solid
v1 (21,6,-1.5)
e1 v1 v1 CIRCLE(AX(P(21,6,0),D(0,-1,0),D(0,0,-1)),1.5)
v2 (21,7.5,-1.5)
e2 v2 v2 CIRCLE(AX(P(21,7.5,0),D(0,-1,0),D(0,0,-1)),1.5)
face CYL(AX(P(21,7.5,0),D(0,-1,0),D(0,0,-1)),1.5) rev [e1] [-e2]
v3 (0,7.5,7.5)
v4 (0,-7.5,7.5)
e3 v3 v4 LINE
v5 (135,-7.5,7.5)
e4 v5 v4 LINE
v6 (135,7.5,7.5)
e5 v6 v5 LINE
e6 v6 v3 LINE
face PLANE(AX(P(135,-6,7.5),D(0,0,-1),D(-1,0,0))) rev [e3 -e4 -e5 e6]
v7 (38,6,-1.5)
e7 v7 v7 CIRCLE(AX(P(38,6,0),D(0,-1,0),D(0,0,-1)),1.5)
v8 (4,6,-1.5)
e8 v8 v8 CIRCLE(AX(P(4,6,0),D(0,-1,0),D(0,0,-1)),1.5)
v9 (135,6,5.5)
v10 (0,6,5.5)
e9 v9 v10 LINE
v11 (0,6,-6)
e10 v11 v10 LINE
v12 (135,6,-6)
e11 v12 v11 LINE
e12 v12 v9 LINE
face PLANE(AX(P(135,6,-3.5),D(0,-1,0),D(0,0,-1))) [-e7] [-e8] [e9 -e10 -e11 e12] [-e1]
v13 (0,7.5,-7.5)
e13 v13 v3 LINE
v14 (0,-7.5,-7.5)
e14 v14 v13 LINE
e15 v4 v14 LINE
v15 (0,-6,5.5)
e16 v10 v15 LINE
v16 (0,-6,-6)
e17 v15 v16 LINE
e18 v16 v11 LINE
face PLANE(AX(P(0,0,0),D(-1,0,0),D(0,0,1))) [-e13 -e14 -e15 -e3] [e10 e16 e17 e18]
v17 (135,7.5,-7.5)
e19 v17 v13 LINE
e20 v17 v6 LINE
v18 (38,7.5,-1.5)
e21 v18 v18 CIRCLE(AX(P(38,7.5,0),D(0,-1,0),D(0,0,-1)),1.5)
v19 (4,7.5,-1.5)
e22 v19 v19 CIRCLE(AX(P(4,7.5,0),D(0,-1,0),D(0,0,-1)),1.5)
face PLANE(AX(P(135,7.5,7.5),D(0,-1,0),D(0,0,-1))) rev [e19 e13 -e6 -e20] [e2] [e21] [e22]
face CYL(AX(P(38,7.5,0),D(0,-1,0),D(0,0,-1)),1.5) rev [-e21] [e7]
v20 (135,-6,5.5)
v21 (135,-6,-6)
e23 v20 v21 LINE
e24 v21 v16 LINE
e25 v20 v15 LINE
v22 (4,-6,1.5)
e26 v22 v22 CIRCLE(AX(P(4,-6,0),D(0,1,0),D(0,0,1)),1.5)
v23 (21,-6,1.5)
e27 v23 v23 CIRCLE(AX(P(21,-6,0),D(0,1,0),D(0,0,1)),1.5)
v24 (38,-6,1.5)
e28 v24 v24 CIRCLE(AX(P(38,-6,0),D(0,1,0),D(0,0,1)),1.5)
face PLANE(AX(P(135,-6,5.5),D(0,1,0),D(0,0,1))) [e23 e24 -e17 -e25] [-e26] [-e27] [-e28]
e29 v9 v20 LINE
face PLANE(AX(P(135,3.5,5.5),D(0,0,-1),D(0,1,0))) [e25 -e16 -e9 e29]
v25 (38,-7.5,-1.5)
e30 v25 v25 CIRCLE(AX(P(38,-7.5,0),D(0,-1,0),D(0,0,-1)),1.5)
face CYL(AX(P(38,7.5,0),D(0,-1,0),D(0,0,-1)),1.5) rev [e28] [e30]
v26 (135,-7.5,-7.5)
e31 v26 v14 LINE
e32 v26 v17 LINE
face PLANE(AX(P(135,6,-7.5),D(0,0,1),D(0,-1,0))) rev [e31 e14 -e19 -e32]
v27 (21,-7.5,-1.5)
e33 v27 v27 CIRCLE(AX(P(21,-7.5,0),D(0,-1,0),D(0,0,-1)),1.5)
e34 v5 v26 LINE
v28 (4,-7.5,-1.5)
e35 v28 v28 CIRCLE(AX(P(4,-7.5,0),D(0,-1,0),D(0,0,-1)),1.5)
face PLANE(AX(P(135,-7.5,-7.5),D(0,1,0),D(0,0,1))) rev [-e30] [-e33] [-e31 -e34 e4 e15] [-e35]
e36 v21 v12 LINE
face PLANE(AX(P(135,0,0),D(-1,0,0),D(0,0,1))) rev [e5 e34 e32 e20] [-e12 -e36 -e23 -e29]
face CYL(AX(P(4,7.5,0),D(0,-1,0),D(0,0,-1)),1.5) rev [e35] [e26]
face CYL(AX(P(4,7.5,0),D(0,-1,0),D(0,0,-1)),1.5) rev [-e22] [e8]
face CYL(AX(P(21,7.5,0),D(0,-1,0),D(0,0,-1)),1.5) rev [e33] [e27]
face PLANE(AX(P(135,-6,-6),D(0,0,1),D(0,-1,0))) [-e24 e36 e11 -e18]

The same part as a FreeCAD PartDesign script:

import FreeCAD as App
import Part
import Sketcher

V = App.Vector

doc = App.newDocument("Part")
body = doc.addObject("PartDesign::Body", "Body")

sketch1 = body.newObject("Sketcher::SketchObject", "Sketch")
sketch1.AttachmentSupport = (doc.getObject("YZ_Plane"), [""])
sketch1.MapMode = "FlatFace"
sketch1.addGeometry([
    Part.LineSegment(V(-8, -8, 0), V(8, -8, 0)),
    Part.LineSegment(V(8, -8, 0), V(8, 8, 0)),
    Part.LineSegment(V(8, 8, 0), V(-8, 8, 0)),
    Part.LineSegment(V(-8, 8, 0), V(-8, -8, 0)),
    Part.LineSegment(V(-6, -6, 0), V(-6, 6, 0)),
    Part.LineSegment(V(-6, 6, 0), V(6, 6, 0)),
    Part.LineSegment(V(6, 6, 0), V(6, -6, 0)),
    Part.LineSegment(V(6, -6, 0), V(-6, -6, 0)),
], False)
sketch1.addConstraint([
    Sketcher.Constraint("Coincident", 0, 2, 1, 1),
    Sketcher.Constraint("Coincident", 1, 2, 2, 1),
    Sketcher.Constraint("Coincident", 2, 2, 3, 1),
    Sketcher.Constraint("Coincident", 3, 2, 0, 1),
    Sketcher.Constraint("Coincident", 4, 2, 5, 1),
    Sketcher.Constraint("Coincident", 5, 2, 6, 1),
    Sketcher.Constraint("Coincident", 6, 2, 7, 1),
    Sketcher.Constraint("Coincident", 7, 2, 4, 1),
    Sketcher.Constraint("Horizontal", 0),
    Sketcher.Constraint("Vertical", 1),
    Sketcher.Constraint("Horizontal", 2),
    Sketcher.Constraint("Vertical", 3),
    Sketcher.Constraint("Vertical", 4),
    Sketcher.Constraint("Horizontal", 5),
    Sketcher.Constraint("Vertical", 6),
    Sketcher.Constraint("Horizontal", 7),
    Sketcher.Constraint("Symmetric", 0, 2, 2, 2, -1, 1),
    Sketcher.Constraint("Equal", 2, 1),
    Sketcher.Constraint("DistanceX", 0, 1, 0, 2, 15.0),
    Sketcher.Constraint("DistanceX", 5, 1, 5, 2, 12.0),
    Sketcher.Constraint("DistanceY", 4, 1, 4, 2, 11.5),
    Sketcher.Constraint("DistanceX", 4, 2, -1, 1, 6.0),
    Sketcher.Constraint("DistanceY", 6, 2, -1, 1, 6.0),
])
pad1 = body.newObject("PartDesign::Pad", "Pad")
pad1.Profile = sketch1
pad1.Length = 135

sketch2 = body.newObject("Sketcher::SketchObject", "Sketch001")
sketch2.AttachmentSupport = (doc.getObject("XZ_Plane"), [""])
sketch2.MapMode = "FlatFace"
sketch2.AttachmentOffset = App.Placement(V(0, 0, 7.5), App.Rotation())
sketch2.addGeometry([
    Part.Circle(V(38, 0, 0), V(0, 0, 1), 1.5),
    Part.Circle(V(4, 0, 0), V(0, 0, 1), 1.5),
    Part.Circle(V(21, 0, 0), V(0, 0, 1), 1.5),
], False)
sketch2.addConstraint([
    Sketcher.Constraint("Equal", 0, 1),
    Sketcher.Constraint("Equal", 1, 2),
    Sketcher.Constraint("PointOnObject", 0, 3, -1),
    Sketcher.Constraint("PointOnObject", 1, 3, -1),
    Sketcher.Constraint("PointOnObject", 2, 3, -1),
    Sketcher.Constraint("Diameter", 0, 3.0),
    Sketcher.Constraint("DistanceX", -1, 1, 0, 3, 38.0),
    Sketcher.Constraint("DistanceX", -1, 1, 1, 3, 4.0),
    Sketcher.Constraint("DistanceX", -1, 1, 2, 3, 21.0),
])
pocket1 = body.newObject("PartDesign::Pocket", "Pocket")
pocket1.Profile = sketch2
pocket1.Type = "ThroughAll"

doc.recompute()
